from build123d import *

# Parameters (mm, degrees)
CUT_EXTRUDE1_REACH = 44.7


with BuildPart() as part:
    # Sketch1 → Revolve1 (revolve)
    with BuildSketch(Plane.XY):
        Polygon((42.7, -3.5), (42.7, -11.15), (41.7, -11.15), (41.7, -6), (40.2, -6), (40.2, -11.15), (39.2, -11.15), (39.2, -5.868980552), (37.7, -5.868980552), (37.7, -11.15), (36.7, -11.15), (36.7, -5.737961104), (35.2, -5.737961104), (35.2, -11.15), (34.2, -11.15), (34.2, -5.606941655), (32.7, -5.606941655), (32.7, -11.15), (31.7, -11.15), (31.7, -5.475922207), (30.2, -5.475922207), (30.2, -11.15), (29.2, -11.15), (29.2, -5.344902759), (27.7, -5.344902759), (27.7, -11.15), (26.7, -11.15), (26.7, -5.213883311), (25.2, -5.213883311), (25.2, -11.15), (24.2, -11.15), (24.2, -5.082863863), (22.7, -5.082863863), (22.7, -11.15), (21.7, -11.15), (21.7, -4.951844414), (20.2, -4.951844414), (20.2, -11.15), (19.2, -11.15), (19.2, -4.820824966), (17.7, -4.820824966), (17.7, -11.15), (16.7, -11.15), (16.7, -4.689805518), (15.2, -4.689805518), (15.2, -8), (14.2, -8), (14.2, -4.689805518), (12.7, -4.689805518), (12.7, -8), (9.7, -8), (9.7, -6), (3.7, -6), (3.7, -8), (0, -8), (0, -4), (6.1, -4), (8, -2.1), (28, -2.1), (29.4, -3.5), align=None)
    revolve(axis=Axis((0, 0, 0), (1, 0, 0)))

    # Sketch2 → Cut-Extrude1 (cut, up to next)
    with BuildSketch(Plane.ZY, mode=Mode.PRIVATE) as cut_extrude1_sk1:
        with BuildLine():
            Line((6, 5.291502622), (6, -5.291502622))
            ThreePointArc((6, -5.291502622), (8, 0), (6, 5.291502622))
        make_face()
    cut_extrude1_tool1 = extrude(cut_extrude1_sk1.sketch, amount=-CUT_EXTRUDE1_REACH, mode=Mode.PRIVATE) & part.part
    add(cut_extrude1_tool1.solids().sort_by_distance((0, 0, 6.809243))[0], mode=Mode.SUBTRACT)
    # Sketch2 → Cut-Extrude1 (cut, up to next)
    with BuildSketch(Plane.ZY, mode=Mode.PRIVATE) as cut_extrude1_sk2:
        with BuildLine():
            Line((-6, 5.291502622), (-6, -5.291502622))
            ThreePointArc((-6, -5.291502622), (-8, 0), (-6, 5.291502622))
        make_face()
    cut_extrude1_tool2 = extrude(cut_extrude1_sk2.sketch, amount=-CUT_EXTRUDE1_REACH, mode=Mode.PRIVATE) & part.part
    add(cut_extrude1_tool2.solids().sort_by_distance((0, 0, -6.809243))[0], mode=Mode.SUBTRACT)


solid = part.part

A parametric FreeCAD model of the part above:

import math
import FreeCAD as App
import Part
import Sketcher
Q = App.Units.Quantity

doc = App.newDocument("Part")
body = doc.addObject("PartDesign::Body", "Body")

sketch1 = body.newObject("Sketcher::SketchObject", "Sketch")
sketch1.AttachmentSupport = (doc.getObject("XY_Plane"), [""])
sketch1.MapMode = "FlatFace"
sketch1.addGeometry([
    Part.LineSegment(App.Vector(42.7, -11.15, 0), App.Vector(42.7, -3.5, 0)),
    Part.LineSegment(App.Vector(42.7, -3.5, 0), App.Vector(29.4, -3.5, 0)),
    Part.LineSegment(App.Vector(29.4, -3.5, 0), App.Vector(28, -2.1, 0)),
    Part.LineSegment(App.Vector(28, -2.1, 0), App.Vector(8, -2.1, 0)),
    Part.LineSegment(App.Vector(8, -2.1, 0), App.Vector(6.1, -4, 0)),
    Part.LineSegment(App.Vector(6.1, -4, 0), App.Vector(0, -4, 0)),
    Part.LineSegment(App.Vector(0, -4, 0), App.Vector(0, -8, 0)),
    Part.LineSegment(App.Vector(0, -8, 0), App.Vector(3.7, -8, 0)),
    Part.LineSegment(App.Vector(3.7, -8, 0), App.Vector(3.7, -6, 0)),
    Part.LineSegment(App.Vector(3.7, -6, 0), App.Vector(9.7, -6, 0)),
    Part.LineSegment(App.Vector(9.7, -6, 0), App.Vector(9.7, -8, 0)),
    Part.LineSegment(App.Vector(9.7, -8, 0), App.Vector(12.7, -8, 0)),
    Part.LineSegment(App.Vector(12.7, -8, 0), App.Vector(12.7, -4.689806, 0)),
    Part.LineSegment(App.Vector(12.7, -4.689806, 0), App.Vector(14.2, -4.689806, 0)),
    Part.LineSegment(App.Vector(14.2, -4.689806, 0), App.Vector(14.2, -8, 0)),
    Part.LineSegment(App.Vector(14.2, -8, 0), App.Vector(15.2, -8, 0)),
    Part.LineSegment(App.Vector(15.2, -8, 0), App.Vector(15.2, -4.689806, 0)),
    Part.LineSegment(App.Vector(15.2, -4.689806, 0), App.Vector(16.7, -4.689806, 0)),
    Part.LineSegment(App.Vector(16.7, -4.689806, 0), App.Vector(16.7, -11.15, 0)),
    Part.LineSegment(App.Vector(16.7, -11.15, 0), App.Vector(17.7, -11.15, 0)),
    Part.LineSegment(App.Vector(17.7, -11.15, 0), App.Vector(17.7, -4.820825, 0)),
    Part.LineSegment(App.Vector(17.7, -4.820825, 0), App.Vector(19.2, -4.820825, 0)),
    Part.LineSegment(App.Vector(19.2, -4.820825, 0), App.Vector(19.2, -11.15, 0)),
    Part.LineSegment(App.Vector(19.2, -11.15, 0), App.Vector(20.2, -11.15, 0)),
    Part.LineSegment(App.Vector(20.2, -11.15, 0), App.Vector(20.2, -4.951844, 0)),
    Part.LineSegment(App.Vector(20.2, -4.951844, 0), App.Vector(21.7, -4.951844, 0)),
    Part.LineSegment(App.Vector(21.7, -4.951844, 0), App.Vector(21.7, -11.15, 0)),
    Part.LineSegment(App.Vector(21.7, -11.15, 0), App.Vector(22.7, -11.15, 0)),
    Part.LineSegment(App.Vector(22.7, -11.15, 0), App.Vector(22.7, -5.082864, 0)),
    Part.LineSegment(App.Vector(22.7, -5.082864, 0), App.Vector(24.2, -5.082864, 0)),
    Part.LineSegment(App.Vector(24.2, -5.082864, 0), App.Vector(24.2, -11.15, 0)),
    Part.LineSegment(App.Vector(24.2, -11.15, 0), App.Vector(25.2, -11.15, 0)),
    Part.LineSegment(App.Vector(25.2, -11.15, 0), App.Vector(25.2, -5.213883, 0)),
    Part.LineSegment(App.Vector(25.2, -5.213883, 0), App.Vector(26.7, -5.213883, 0)),
    Part.LineSegment(App.Vector(26.7, -5.213883, 0), App.Vector(26.7, -11.15, 0)),
    Part.LineSegment(App.Vector(26.7, -11.15, 0), App.Vector(27.7, -11.15, 0)),
    Part.LineSegment(App.Vector(27.7, -11.15, 0), App.Vector(27.7, -5.344903, 0)),
    Part.LineSegment(App.Vector(27.7, -5.344903, 0), App.Vector(29.2, -5.344903, 0)),
    Part.LineSegment(App.Vector(29.2, -5.344903, 0), App.Vector(29.2, -11.15, 0)),
    Part.LineSegment(App.Vector(29.2, -11.15, 0), App.Vector(30.2, -11.15, 0)),
    Part.LineSegment(App.Vector(30.2, -11.15, 0), App.Vector(30.2, -5.475922, 0)),
    Part.LineSegment(App.Vector(30.2, -5.475922, 0), App.Vector(31.7, -5.475922, 0)),
    Part.LineSegment(App.Vector(31.7, -5.475922, 0), App.Vector(31.7, -11.15, 0)),
    Part.LineSegment(App.Vector(31.7, -11.15, 0), App.Vector(32.7, -11.15, 0)),
    Part.LineSegment(App.Vector(32.7, -11.15, 0), App.Vector(32.7, -5.606942, 0)),
    Part.LineSegment(App.Vector(32.7, -5.606942, 0), App.Vector(34.2, -5.606942, 0)),
    Part.LineSegment(App.Vector(34.2, -5.606942, 0), App.Vector(34.2, -11.15, 0)),
    Part.LineSegment(App.Vector(34.2, -11.15, 0), App.Vector(35.2, -11.15, 0)),
    Part.LineSegment(App.Vector(35.2, -11.15, 0), App.Vector(35.2, -5.737961, 0)),
    Part.LineSegment(App.Vector(35.2, -5.737961, 0), App.Vector(36.7, -5.737961, 0)),
    Part.LineSegment(App.Vector(36.7, -5.737961, 0), App.Vector(36.7, -11.15, 0)),
    Part.LineSegment(App.Vector(36.7, -11.15, 0), App.Vector(37.7, -11.15, 0)),
    Part.LineSegment(App.Vector(37.7, -11.15, 0), App.Vector(37.7, -5.868981, 0)),
    Part.LineSegment(App.Vector(37.7, -5.868981, 0), App.Vector(39.2, -5.868981, 0)),
    Part.LineSegment(App.Vector(39.2, -5.868981, 0), App.Vector(39.2, -11.15, 0)),
    Part.LineSegment(App.Vector(39.2, -11.15, 0), App.Vector(40.2, -11.15, 0)),
    Part.LineSegment(App.Vector(40.2, -11.15, 0), App.Vector(40.2, -6, 0)),
    Part.LineSegment(App.Vector(40.2, -6, 0), App.Vector(41.7, -6, 0)),
    Part.LineSegment(App.Vector(41.7, -6, 0), App.Vector(41.7, -11.15, 0)),
    Part.LineSegment(App.Vector(41.7, -11.15, 0), App.Vector(42.7, -11.15, 0)),
], False)
sketch1.addConstraint([
    Sketcher.Constraint("Coincident", 0, 2, 1, 1),
    Sketcher.Constraint("Coincident", 1, 2, 2, 1),
    Sketcher.Constraint("Coincident", 2, 2, 3, 1),
    Sketcher.Constraint("Coincident", 3, 2, 4, 1),
    Sketcher.Constraint("Coincident", 4, 2, 5, 1),
    Sketcher.Constraint("Coincident", 5, 2, 6, 1),
    Sketcher.Constraint("Coincident", 6, 2, 7, 1),
    Sketcher.Constraint("Coincident", 7, 2, 8, 1),
    Sketcher.Constraint("Coincident", 8, 2, 9, 1),
    Sketcher.Constraint("Coincident", 9, 2, 10, 1),
    Sketcher.Constraint("Coincident", 10, 2, 11, 1),
    Sketcher.Constraint("Coincident", 11, 2, 12, 1),
    Sketcher.Constraint("Coincident", 12, 2, 13, 1),
    Sketcher.Constraint("Coincident", 13, 2, 14, 1),
    Sketcher.Constraint("Coincident", 14, 2, 15, 1),
    Sketcher.Constraint("Coincident", 15, 2, 16, 1),
    Sketcher.Constraint("Coincident", 16, 2, 17, 1),
    Sketcher.Constraint("Coincident", 17, 2, 18, 1),
    Sketcher.Constraint("Coincident", 18, 2, 19, 1),
    Sketcher.Constraint("Coincident", 19, 2, 20, 1),
    Sketcher.Constraint("Coincident", 20, 2, 21, 1),
    Sketcher.Constraint("Coincident", 21, 2, 22, 1),
    Sketcher.Constraint("Coincident", 22, 2, 23, 1),
    Sketcher.Constraint("Coincident", 23, 2, 24, 1),
    Sketcher.Constraint("Coincident", 24, 2, 25, 1),
    Sketcher.Constraint("Coincident", 25, 2, 26, 1),
    Sketcher.Constraint("Coincident", 26, 2, 27, 1),
    Sketcher.Constraint("Coincident", 27, 2, 28, 1),
    Sketcher.Constraint("Coincident", 28, 2, 29, 1),
    Sketcher.Constraint("Coincident", 29, 2, 30, 1),
    Sketcher.Constraint("Coincident", 30, 2, 31, 1),
    Sketcher.Constraint("Coincident", 31, 2, 32, 1),
    Sketcher.Constraint("Coincident", 32, 2, 33, 1),
    Sketcher.Constraint("Coincident", 33, 2, 34, 1),
    Sketcher.Constraint("Coincident", 34, 2, 35, 1),
    Sketcher.Constraint("Coincident", 35, 2, 36, 1),
    Sketcher.Constraint("Coincident", 36, 2, 37, 1),
    Sketcher.Constraint("Coincident", 37, 2, 38, 1),
    Sketcher.Constraint("Coincident", 38, 2, 39, 1),
    Sketcher.Constraint("Coincident", 39, 2, 40, 1),
    Sketcher.Constraint("Coincident", 40, 2, 41, 1),
    Sketcher.Constraint("Coincident", 41, 2, 42, 1),
    Sketcher.Constraint("Coincident", 42, 2, 43, 1),
    Sketcher.Constraint("Coincident", 43, 2, 44, 1),
    Sketcher.Constraint("Coincident", 44, 2, 45, 1),
    Sketcher.Constraint("Coincident", 45, 2, 46, 1),
    Sketcher.Constraint("Coincident", 46, 2, 47, 1),
    Sketcher.Constraint("Coincident", 47, 2, 48, 1),
    Sketcher.Constraint("Coincident", 48, 2, 49, 1),
    Sketcher.Constraint("Coincident", 49, 2, 50, 1),
    Sketcher.Constraint("Coincident", 50, 2, 51, 1),
    Sketcher.Constraint("Coincident", 51, 2, 52, 1),
    Sketcher.Constraint("Coincident", 52, 2, 53, 1),
    Sketcher.Constraint("Coincident", 53, 2, 54, 1),
    Sketcher.Constraint("Coincident", 54, 2, 55, 1),
    Sketcher.Constraint("Coincident", 55, 2, 56, 1),
    Sketcher.Constraint("Coincident", 56, 2, 57, 1),
    Sketcher.Constraint("Coincident", 57, 2, 58, 1),
    Sketcher.Constraint("Coincident", 58, 2, 59, 1),
    Sketcher.Constraint("Coincident", 59, 2, 0, 1),
    Sketcher.Constraint("Vertical", 0),
    Sketcher.Constraint("Horizontal", 1),
    Sketcher.Constraint("Horizontal", 3),
    Sketcher.Constraint("Horizontal", 5),
    Sketcher.Constraint("Vertical", 6),
    Sketcher.Constraint("Horizontal", 7),
    Sketcher.Constraint("Vertical", 8),
    Sketcher.Constraint("Horizontal", 9),
    Sketcher.Constraint("Vertical", 10),
    Sketcher.Constraint("Horizontal", 11),
    Sketcher.Constraint("Vertical", 12),
    Sketcher.Constraint("Horizontal", 13),
    Sketcher.Constraint("Vertical", 14),
    Sketcher.Constraint("Horizontal", 15),
    Sketcher.Constraint("Vertical", 16),
    Sketcher.Constraint("Horizontal", 17),
    Sketcher.Constraint("Vertical", 18),
    Sketcher.Constraint("Horizontal", 19),
    Sketcher.Constraint("Vertical", 20),
    Sketcher.Constraint("Horizontal", 21),
    Sketcher.Constraint("Vertical", 22),
    Sketcher.Constraint("Horizontal", 23),
    Sketcher.Constraint("Vertical", 24),
    Sketcher.Constraint("Horizontal", 25),
    Sketcher.Constraint("Vertical", 26),
    Sketcher.Constraint("Horizontal", 27),
    Sketcher.Constraint("Vertical", 28),
    Sketcher.Constraint("Horizontal", 29),
    Sketcher.Constraint("Vertical", 30),
    Sketcher.Constraint("Horizontal", 31),
    Sketcher.Constraint("Vertical", 32),
    Sketcher.Constraint("Horizontal", 33),
    Sketcher.Constraint("Vertical", 34),
    Sketcher.Constraint("Horizontal", 35),
    Sketcher.Constraint("Vertical", 36),
    Sketcher.Constraint("Horizontal", 37),
    Sketcher.Constraint("Vertical", 38),
    Sketcher.Constraint("Horizontal", 39),
    Sketcher.Constraint("Vertical", 40),
    Sketcher.Constraint("Horizontal", 41),
    Sketcher.Constraint("Vertical", 42),
    Sketcher.Constraint("Horizontal", 43),
    Sketcher.Constraint("Vertical", 44),
    Sketcher.Constraint("Horizontal", 45),
    Sketcher.Constraint("Vertical", 46),
    Sketcher.Constraint("Horizontal", 47),
    Sketcher.Constraint("Vertical", 48),
    Sketcher.Constraint("Horizontal", 49),
    Sketcher.Constraint("Vertical", 50),
    Sketcher.Constraint("Horizontal", 51),
    Sketcher.Constraint("Vertical", 52),
    Sketcher.Constraint("Horizontal", 53),
    Sketcher.Constraint("Vertical", 54),
    Sketcher.Constraint("Horizontal", 55),
    Sketcher.Constraint("Vertical", 56),
    Sketcher.Constraint("Horizontal", 57),
    Sketcher.Constraint("Vertical", 58),
    Sketcher.Constraint("Horizontal", 59),
    Sketcher.Constraint("PointOnObject", 5, 2, -2),
    Sketcher.Constraint("Perpendicular", 2, 4),
    Sketcher.Constraint("Horizontal", 7, 2, 10, 2),
    Sketcher.Constraint("Horizontal", 11, 2, 14, 2),
    Sketcher.Constraint("Horizontal", 13, 2, 16, 2),
    Sketcher.Constraint("Horizontal", 19, 2, 22, 2),
    Sketcher.Constraint("Horizontal", 23, 2, 26, 2),
    Sketcher.Constraint("Horizontal", 27, 2, 30, 2),
    Sketcher.Constraint("Horizontal", 31, 2, 34, 2),
    Sketcher.Constraint("Horizontal", 35, 2, 38, 2),
    Sketcher.Constraint("Horizontal", 39, 2, 42, 2),
    Sketcher.Constraint("Horizontal", 43, 2, 46, 2),
    Sketcher.Constraint("Horizontal", 47, 2, 50, 2),
    Sketcher.Constraint("Horizontal", 51, 2, 54, 2),
    Sketcher.Constraint("Horizontal", 9, 2, 56, 2),
    Sketcher.Constraint("Horizontal", 55, 2, 58, 2),
    Sketcher.Constraint("Equal", 13, 17),
    Sketcher.Constraint("Equal", 15, 19),
    Sketcher.Constraint("Equal", 17, 21),
    Sketcher.Constraint("Equal", 19, 23),
    Sketcher.Constraint("Equal", 21, 25),
    Sketcher.Constraint("Equal", 23, 27),
    Sketcher.Constraint("Equal", 25, 29),
    Sketcher.Constraint("Equal", 27, 31),
    Sketcher.Constraint("Equal", 29, 33),
    Sketcher.Constraint("Equal", 31, 35),
    Sketcher.Constraint("Equal", 33, 37),
    Sketcher.Constraint("Equal", 35, 39),
    Sketcher.Constraint("Equal", 37, 41),
    Sketcher.Constraint("Equal", 39, 43),
    Sketcher.Constraint("Equal", 41, 45),
    Sketcher.Constraint("Equal", 43, 47),
    Sketcher.Constraint("Equal", 45, 49),
    Sketcher.Constraint("Equal", 47, 51),
    Sketcher.Constraint("Equal", 49, 53),
    Sketcher.Constraint("Equal", 51, 55),
    Sketcher.Constraint("Equal", 53, 57),
    Sketcher.Constraint("Equal", 55, 59),
    Sketcher.Constraint("DistanceX", 3, 2, 3, 1, 20.0),
    Sketcher.Constraint("DistanceX", 9, 1, 9, 2, 6.0),
    Sketcher.Constraint("DistanceX", 11, 1, 11, 2, 3.0),
    Sketcher.Constraint("DistanceX", 15, 1, 15, 2, 1.0),
    Sketcher.Constraint("DistanceY", 6, 2, 6, 1, 4.0),
    Sketcher.Constraint("DistanceY", 8, 1, 8, 2, 2.0),
    Sketcher.Constraint("Angle", 2, Q("135 deg")),
    Sketcher.Constraint("DistanceX", 1, 2, 1, 1, 13.3),
    Sketcher.Constraint("DistanceX", 5, 2, 5, 1, 6.1),
    Sketcher.Constraint("DistanceX", 7, 1, 7, 2, 3.7),
    Sketcher.Constraint("DistanceX", 13, 1, 13, 2, 1.5),
    Sketcher.Constraint("DistanceX", -1, 1, 2, 2, 28.0),
    Sketcher.Constraint("DistanceY", 4, 2, -1, 1, 4.0),
    Sketcher.Constraint("DistanceY", 0, 1, 0, 2, 7.65),
    Sketcher.Constraint("DistanceY", 44, 1, 44, 2, 5.543058),
    Sketcher.Constraint("DistanceY", 48, 1, 48, 2, 5.412039),
    Sketcher.Constraint("DistanceY", 52, 1, 52, 2, 5.281019),
    Sketcher.Constraint("DistanceY", 12, 1, 12, 2, 3.310194),
    Sketcher.Constraint("DistanceY", 20, 1, 20, 2, 6.329175),
    Sketcher.Constraint("DistanceY", 24, 1, 24, 2, 6.198156),
    Sketcher.Constraint("DistanceY", 28, 1, 28, 2, 6.067136),
    Sketcher.Constraint("DistanceY", 32, 1, 32, 2, 5.936117),
    Sketcher.Constraint("DistanceY", 36, 1, 36, 2, 5.805097),
    Sketcher.Constraint("DistanceY", 40, 1, 40, 2, 5.674078),
])
revolution = body.newObject("PartDesign::Revolution", "Revolution")
revolution.Profile = sketch1
revolution.ReferenceAxis = (sketch1, ["H_Axis"])
revolution.Angle = 360

sketch2 = body.newObject("Sketcher::SketchObject", "Sketch001")
sketch2.AttachmentSupport = (doc.getObject("YZ_Plane"), [""])
sketch2.MapMode = "FlatFace"
sketch2.addGeometry([
    Part.LineSegment(App.Vector(5.291503, 6, 0), App.Vector(-5.291503, 6, 0)),
    Part.ArcOfCircle(Part.Circle(App.Vector(0, 0, 0), App.Vector(0, 0, 1), 8), math.radians(48.590378), math.radians(131.409622)),
], False)
sketch2.addConstraint([
    Sketcher.Constraint("Coincident", 0, 1, 1, 1),
    Sketcher.Constraint("Coincident", 1, 2, 0, 2),
    Sketcher.Constraint("Horizontal", 0),
    Sketcher.Constraint("Coincident", 1, 3, -1, 1),
    Sketcher.Constraint("Radius", 1, 8.0),
    Sketcher.Constraint("DistanceY", -1, 1, 0, 1, 6.0),
])
pocket1 = body.newObject("PartDesign::Pocket", "Pocket")
pocket1.Profile = sketch2
pocket1.Type = "UpToFirst"
pocket1.Reversed = True

sketch3 = body.newObject("Sketcher::SketchObject", "Sketch002")
sketch3.AttachmentSupport = (doc.getObject("YZ_Plane"), [""])
sketch3.MapMode = "FlatFace"
sketch3.addGeometry([
    Part.LineSegment(App.Vector(-5.291503, -6, 0), App.Vector(5.291503, -6, 0)),
    Part.ArcOfCircle(Part.Circle(App.Vector(0, 0, 0), App.Vector(0, 0, 1), 8), math.radians(-131.409622), math.radians(-48.590378)),
], False)
sketch3.addConstraint([
    Sketcher.Constraint("Coincident", 0, 1, 1, 1),
    Sketcher.Constraint("Coincident", 1, 2, 0, 2),
    Sketcher.Constraint("Horizontal", 0),
    Sketcher.Constraint("Coincident", 1, 3, -1, 1),
    Sketcher.Constraint("Radius", 1, 8.0),
    Sketcher.Constraint("DistanceY", 0, 1, -1, 1, 6.0),
])
pocket2 = body.newObject("PartDesign::Pocket", "Pocket001")
pocket2.Profile = sketch3
pocket2.Type = "UpToFirst"
pocket2.Reversed = True

doc.recompute()
